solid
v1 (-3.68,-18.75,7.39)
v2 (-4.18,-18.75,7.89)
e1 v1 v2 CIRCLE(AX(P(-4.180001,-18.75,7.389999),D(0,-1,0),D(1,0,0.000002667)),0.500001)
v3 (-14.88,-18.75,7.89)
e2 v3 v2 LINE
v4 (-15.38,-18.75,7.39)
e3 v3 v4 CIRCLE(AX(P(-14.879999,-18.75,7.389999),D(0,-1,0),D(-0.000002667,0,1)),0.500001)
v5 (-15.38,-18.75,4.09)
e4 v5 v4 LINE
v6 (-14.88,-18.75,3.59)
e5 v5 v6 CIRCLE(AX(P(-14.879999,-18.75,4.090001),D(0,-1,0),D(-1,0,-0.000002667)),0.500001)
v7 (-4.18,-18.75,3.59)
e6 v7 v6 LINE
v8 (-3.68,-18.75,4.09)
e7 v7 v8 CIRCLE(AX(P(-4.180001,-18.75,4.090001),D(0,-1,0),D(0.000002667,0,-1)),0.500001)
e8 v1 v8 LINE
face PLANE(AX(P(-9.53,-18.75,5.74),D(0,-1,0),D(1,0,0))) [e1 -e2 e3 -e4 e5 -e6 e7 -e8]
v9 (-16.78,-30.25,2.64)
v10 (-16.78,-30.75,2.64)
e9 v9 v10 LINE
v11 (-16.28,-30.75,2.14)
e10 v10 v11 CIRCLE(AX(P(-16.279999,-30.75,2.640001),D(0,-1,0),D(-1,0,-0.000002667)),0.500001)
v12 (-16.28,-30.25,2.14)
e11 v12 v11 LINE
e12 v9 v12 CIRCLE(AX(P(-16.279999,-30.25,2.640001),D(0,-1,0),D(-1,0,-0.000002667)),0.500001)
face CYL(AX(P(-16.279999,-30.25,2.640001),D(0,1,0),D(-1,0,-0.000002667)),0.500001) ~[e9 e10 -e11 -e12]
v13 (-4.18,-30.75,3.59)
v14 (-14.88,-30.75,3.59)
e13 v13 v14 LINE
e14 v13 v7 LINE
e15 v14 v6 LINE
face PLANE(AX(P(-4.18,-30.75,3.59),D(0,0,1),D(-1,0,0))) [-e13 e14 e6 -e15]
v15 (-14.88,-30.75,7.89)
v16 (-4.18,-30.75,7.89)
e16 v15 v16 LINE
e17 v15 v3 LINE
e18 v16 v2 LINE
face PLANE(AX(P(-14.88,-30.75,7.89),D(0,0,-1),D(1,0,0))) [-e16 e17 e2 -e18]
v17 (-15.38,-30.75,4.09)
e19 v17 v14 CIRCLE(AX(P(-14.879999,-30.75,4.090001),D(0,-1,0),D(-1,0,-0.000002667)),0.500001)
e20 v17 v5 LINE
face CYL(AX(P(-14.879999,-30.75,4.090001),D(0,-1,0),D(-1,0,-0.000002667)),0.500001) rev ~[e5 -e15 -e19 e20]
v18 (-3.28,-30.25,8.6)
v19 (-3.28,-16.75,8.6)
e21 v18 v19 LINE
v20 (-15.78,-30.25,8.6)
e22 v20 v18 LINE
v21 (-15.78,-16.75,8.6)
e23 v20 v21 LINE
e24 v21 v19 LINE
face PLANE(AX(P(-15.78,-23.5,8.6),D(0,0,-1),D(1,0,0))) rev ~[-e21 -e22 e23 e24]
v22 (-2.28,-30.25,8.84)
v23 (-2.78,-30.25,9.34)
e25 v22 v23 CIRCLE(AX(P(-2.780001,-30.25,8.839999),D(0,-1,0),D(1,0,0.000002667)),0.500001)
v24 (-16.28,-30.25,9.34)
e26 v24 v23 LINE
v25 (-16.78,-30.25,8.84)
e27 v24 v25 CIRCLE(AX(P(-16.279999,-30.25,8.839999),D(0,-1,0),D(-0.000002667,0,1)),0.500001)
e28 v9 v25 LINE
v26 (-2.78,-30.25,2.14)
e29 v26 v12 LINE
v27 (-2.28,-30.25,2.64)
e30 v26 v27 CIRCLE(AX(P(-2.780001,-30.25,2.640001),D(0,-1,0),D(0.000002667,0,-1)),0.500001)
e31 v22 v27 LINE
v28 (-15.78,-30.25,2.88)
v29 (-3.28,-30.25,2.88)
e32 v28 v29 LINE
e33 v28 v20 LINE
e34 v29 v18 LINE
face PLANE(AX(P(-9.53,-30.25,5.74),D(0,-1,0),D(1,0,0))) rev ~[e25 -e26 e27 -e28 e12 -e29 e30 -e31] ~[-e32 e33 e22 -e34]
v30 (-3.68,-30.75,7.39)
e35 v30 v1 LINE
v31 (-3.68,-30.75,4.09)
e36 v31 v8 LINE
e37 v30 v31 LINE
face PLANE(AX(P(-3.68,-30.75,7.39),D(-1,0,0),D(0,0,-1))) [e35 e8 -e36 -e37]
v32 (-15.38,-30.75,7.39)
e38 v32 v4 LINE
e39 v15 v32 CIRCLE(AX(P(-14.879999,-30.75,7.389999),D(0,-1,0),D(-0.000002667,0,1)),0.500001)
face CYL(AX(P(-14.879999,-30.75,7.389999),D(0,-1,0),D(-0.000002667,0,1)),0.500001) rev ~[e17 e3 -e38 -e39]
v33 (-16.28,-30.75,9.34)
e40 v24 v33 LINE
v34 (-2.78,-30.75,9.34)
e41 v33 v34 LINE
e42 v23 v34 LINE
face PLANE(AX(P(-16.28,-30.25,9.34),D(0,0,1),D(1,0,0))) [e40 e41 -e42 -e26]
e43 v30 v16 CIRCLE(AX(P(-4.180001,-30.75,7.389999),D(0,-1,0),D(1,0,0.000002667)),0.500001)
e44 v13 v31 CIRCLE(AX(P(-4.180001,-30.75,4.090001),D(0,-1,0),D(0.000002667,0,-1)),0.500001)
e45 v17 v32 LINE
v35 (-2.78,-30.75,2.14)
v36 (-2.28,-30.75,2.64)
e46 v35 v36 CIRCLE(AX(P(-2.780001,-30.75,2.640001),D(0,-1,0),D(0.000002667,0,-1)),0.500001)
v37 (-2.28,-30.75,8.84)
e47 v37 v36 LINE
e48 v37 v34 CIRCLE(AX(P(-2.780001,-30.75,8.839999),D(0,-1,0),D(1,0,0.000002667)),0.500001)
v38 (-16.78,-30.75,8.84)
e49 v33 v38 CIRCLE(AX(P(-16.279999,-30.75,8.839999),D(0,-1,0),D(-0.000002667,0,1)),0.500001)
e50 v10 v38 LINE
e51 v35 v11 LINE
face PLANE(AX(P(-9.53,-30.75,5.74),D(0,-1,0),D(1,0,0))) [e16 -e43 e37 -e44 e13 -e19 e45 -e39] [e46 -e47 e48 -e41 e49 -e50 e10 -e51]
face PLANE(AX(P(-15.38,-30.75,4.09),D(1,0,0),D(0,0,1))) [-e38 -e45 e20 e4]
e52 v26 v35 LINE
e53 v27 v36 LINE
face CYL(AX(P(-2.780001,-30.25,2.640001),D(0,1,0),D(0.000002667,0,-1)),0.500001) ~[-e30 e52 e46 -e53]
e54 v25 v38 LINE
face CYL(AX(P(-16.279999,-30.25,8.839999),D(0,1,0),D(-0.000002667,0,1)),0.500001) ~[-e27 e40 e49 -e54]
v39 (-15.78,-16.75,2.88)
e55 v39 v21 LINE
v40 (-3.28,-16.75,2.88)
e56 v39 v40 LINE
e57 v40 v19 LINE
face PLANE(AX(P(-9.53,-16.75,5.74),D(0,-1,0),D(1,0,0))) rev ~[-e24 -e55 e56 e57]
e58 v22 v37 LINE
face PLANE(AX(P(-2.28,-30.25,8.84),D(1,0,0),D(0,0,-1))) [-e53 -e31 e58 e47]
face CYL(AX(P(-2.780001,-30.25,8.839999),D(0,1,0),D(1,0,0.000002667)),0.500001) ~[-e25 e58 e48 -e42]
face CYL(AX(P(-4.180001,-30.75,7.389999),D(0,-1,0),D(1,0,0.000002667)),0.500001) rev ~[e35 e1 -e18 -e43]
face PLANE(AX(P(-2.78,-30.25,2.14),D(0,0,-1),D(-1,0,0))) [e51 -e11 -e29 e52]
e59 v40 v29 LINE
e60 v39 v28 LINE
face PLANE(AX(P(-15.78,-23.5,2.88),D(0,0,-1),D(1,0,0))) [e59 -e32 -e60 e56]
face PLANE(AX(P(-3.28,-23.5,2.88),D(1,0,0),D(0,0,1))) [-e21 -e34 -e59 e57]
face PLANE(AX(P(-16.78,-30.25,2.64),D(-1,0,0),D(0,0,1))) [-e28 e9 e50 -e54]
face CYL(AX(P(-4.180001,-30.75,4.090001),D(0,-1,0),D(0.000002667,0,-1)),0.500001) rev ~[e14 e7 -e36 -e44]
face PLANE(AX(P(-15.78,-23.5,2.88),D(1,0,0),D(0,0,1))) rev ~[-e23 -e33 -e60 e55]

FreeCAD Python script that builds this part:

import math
import FreeCAD as App
import Part
import Sketcher

V = App.Vector

doc = App.newDocument("Part")
params = doc.addObject("Spreadsheet::Sheet", "Params")
for row, (alias, value) in enumerate([
    ("sketch1_width", "12.5 mm"),
    ("sketch1_height", "5.72 mm"),
    ("pad1_length", "13.5 mm"),
    ("sketch2_radius", "0.500001 mm"),
    ("sketch2_width", "13.5 mm"),
    ("sketch2_height", "6.2 mm"),
    ("pad2_length", "0.5 mm"),
    ("sketch3_radius", "0.500001 mm"),
    ("sketch3_width", "10.7 mm"),
    ("sketch3_height", "3.3 mm"),
    ("pocket1_length", "12 mm"),
], start=1):
    params.set(f"A{row}", alias)
    params.set(f"B{row}", "=" + value)
    params.setAlias(f"B{row}", alias)

body = doc.addObject("PartDesign::Body", "Body")

sketch1 = body.newObject("Sketcher::SketchObject", "Sketch")
sketch1.AttachmentSupport = (doc.getObject("XZ_Plane"), [""])
sketch1.MapMode = "FlatFace"
sketch1.addGeometry([
    Part.LineSegment(V(-6, 7, 0), V(-6, 1, 0)),
    Part.LineSegment(V(-6, 1, 0), V(6, 1, 0)),
    Part.LineSegment(V(6, 1, 0), V(6, 7, 0)),
    Part.LineSegment(V(6, 7, 0), V(-6, 7, 0)),
], False)
sketch1.addConstraint([
    Sketcher.Constraint("Coincident", 0, 2, 1, 1),
    Sketcher.Constraint("Coincident", 1, 2, 2, 1),
    Sketcher.Constraint("Coincident", 2, 2, 3, 1),
    Sketcher.Constraint("Coincident", 3, 2, 0, 1),
    Sketcher.Constraint("Vertical", 0),
    Sketcher.Constraint("Horizontal", 1),
    Sketcher.Constraint("Vertical", 2),
    Sketcher.Constraint("Horizontal", 3),
    Sketcher.Constraint("DistanceX", 1, 1, 1, 2, 12.5),
    Sketcher.Constraint("DistanceY", -1, 1, 2, 2, 7.0),
    Sketcher.Constraint("DistanceY", 0, 2, 0, 1, 5.72),
    Sketcher.Constraint("DistanceX", 0, 2, -1, 1, 6.25),
])
sketch1.setExpression("Constraints[8]", "Params.sketch1_width")
sketch1.setExpression("Constraints[10]", "Params.sketch1_height")
pad1 = body.newObject("PartDesign::Pad", "Pad")
pad1.Profile = sketch1
pad1.setExpression("Length", "Params.pad1_length")
pad1.Midplane = True

sketch2 = body.newObject("Sketcher::SketchObject", "Sketch001")
sketch2.AttachmentSupport = (doc.getObject("XZ_Plane"), [""])
sketch2.MapMode = "FlatFace"
sketch2.AttachmentOffset = App.Placement(V(0, 0, 6.75), App.Rotation())
sketch2.addGeometry([
    Part.ArcOfCircle(Part.Circle(V(-6.7, 7.2, 0), V(0, 0, 1), 0.5), math.radians(90), math.radians(180)),
    Part.LineSegment(V(-7.2, 7.2, 0), V(-7.2, 1, 0)),
    Part.ArcOfCircle(Part.Circle(V(-6.7, 1, 0), V(0, 0, 1), 0.5), math.radians(-180), math.radians(-90)),
    Part.LineSegment(V(-6.8, 0.5, 0), V(6.8, 0.5, 0)),
    Part.ArcOfCircle(Part.Circle(V(6.7, 1, 0), V(0, 0, 1), 0.5), math.radians(-90), math.radians(0)),
    Part.LineSegment(V(7.2, 1, 0), V(7.2, 7.2, 0)),
    Part.ArcOfCircle(Part.Circle(V(6.7, 7.2, 0), V(0, 0, 1), 0.5), math.radians(0), math.radians(90)),
    Part.LineSegment(V(6.8, 7.7, 0), V(-6.8, 7.7, 0)),
], False)
sketch2.addConstraint([
    Sketcher.Constraint("Coincident", 0, 2, 1, 1),
    Sketcher.Constraint("Coincident", 1, 2, 2, 1),
    Sketcher.Constraint("Coincident", 2, 2, 3, 1),
    Sketcher.Constraint("Coincident", 3, 2, 4, 1),
    Sketcher.Constraint("Coincident", 4, 2, 5, 1),
    Sketcher.Constraint("Coincident", 5, 2, 6, 1),
    Sketcher.Constraint("Coincident", 6, 2, 7, 1),
    Sketcher.Constraint("Coincident", 7, 2, 0, 1),
    Sketcher.Constraint("Vertical", 1),
    Sketcher.Constraint("Horizontal", 3),
    Sketcher.Constraint("Vertical", 5),
    Sketcher.Constraint("Horizontal", 7),
    Sketcher.Constraint("Equal", 0, 2),
    Sketcher.Constraint("Equal", 2, 4),
    Sketcher.Constraint("Equal", 4, 6),
    Sketcher.Constraint("Symmetric", 1, 2, 4, 2, -2),
    Sketcher.Constraint("Horizontal", 6, 3, 0, 2),
    Sketcher.Constraint("Horizontal", 4, 3, 1, 2),
    Sketcher.Constraint("Horizontal", 0, 2, 5, 2),
    Sketcher.Constraint("Vertical", 0, 3, 2, 2),
    Sketcher.Constraint("Vertical", 6, 3, 3, 2),
    Sketcher.Constraint("Vertical", 3, 2, 6, 2),
    Sketcher.Constraint("Vertical", 2, 2, 7, 2),
    Sketcher.Constraint("Radius", 0, 0.500001),
    Sketcher.Constraint("DistanceX", 3, 1, 3, 2, 13.5),
    Sketcher.Constraint("DistanceY", 1, 2, 1, 1, 6.2),
    Sketcher.Constraint("DistanceY", -1, 1, 0, 3, 7.239999),
])
sketch2.setExpression("Constraints[23]", "Params.sketch2_radius")
sketch2.setExpression("Constraints[24]", "Params.sketch2_width")
sketch2.setExpression("Constraints[25]", "Params.sketch2_height")
pad2 = body.newObject("PartDesign::Pad", "Pad001")
pad2.Profile = sketch2
pad2.setExpression("Length", "Params.pad2_length")

sketch3 = body.newObject("Sketcher::SketchObject", "Sketch002")
sketch3.AttachmentSupport = (doc.getObject("XZ_Plane"), [""])
sketch3.MapMode = "FlatFace"
sketch3.AttachmentOffset = App.Placement(V(0, 0, 7.25), App.Rotation())
sketch3.addGeometry([
    Part.ArcOfCircle(Part.Circle(V(-5.3, 5.8, 0), V(0, 0, 1), 0.5), math.radians(90), math.radians(180)),
    Part.LineSegment(V(-5.8, 5.8, 0), V(-5.8, 2.5, 0)),
    Part.ArcOfCircle(Part.Circle(V(-5.3, 2.5, 0), V(0, 0, 1), 0.5), math.radians(-180), math.radians(-90)),
    Part.LineSegment(V(-5.3, 2, 0), V(5.3, 2, 0)),
    Part.ArcOfCircle(Part.Circle(V(5.3, 2.5, 0), V(0, 0, 1), 0.5), math.radians(-90), math.radians(0)),
    Part.LineSegment(V(5.8, 2.5, 0), V(5.8, 5.8, 0)),
    Part.ArcOfCircle(Part.Circle(V(5.3, 5.8, 0), V(0, 0, 1), 0.5), math.radians(0), math.radians(90)),
    Part.LineSegment(V(5.3, 6.3, 0), V(-5.3, 6.3, 0)),
], False)
sketch3.addConstraint([
    Sketcher.Constraint("Coincident", 0, 2, 1, 1),
    Sketcher.Constraint("Coincident", 1, 2, 2, 1),
    Sketcher.Constraint("Coincident", 2, 2, 3, 1),
    Sketcher.Constraint("Coincident", 3, 2, 4, 1),
    Sketcher.Constraint("Coincident", 4, 2, 5, 1),
    Sketcher.Constraint("Coincident", 5, 2, 6, 1),
    Sketcher.Constraint("Coincident", 6, 2, 7, 1),
    Sketcher.Constraint("Coincident", 7, 2, 0, 1),
    Sketcher.Constraint("Vertical", 1),
    Sketcher.Constraint("Horizontal", 3),
    Sketcher.Constraint("Vertical", 5),
    Sketcher.Constraint("Horizontal", 7),
    Sketcher.Constraint("Equal", 0, 2),
    Sketcher.Constraint("Equal", 2, 4),
    Sketcher.Constraint("Equal", 4, 6),
    Sketcher.Constraint("Symmetric", 1, 2, 4, 2, -2),
    Sketcher.Constraint("Horizontal", 6, 3, 0, 2),
    Sketcher.Constraint("Horizontal", 4, 3, 1, 2),
    Sketcher.Constraint("Horizontal", 0, 2, 5, 2),
    Sketcher.Constraint("Vertical", 0, 3, 2, 2),
    Sketcher.Constraint("Vertical", 6, 3, 3, 2),
    Sketcher.Constraint("Vertical", 3, 2, 6, 2),
    Sketcher.Constraint("Vertical", 2, 2, 7, 2),
    Sketcher.Constraint("Radius", 0, 0.500001),
    Sketcher.Constraint("DistanceX", 3, 1, 3, 2, 10.7),
    Sketcher.Constraint("DistanceY", 1, 2, 1, 1, 3.3),
    Sketcher.Constraint("DistanceY", -1, 1, 0, 3, 5.789999),
])
sketch3.setExpression("Constraints[23]", "Params.sketch3_radius")
sketch3.setExpression("Constraints[24]", "Params.sketch3_width")
sketch3.setExpression("Constraints[25]", "Params.sketch3_height")
pocket1 = body.newObject("PartDesign::Pocket", "Pocket")
pocket1.Profile = sketch3
pocket1.setExpression("Length", "Params.pocket1_length")
body2 = doc.addObject("PartDesign::Body", "Body001")
doc.recompute()

body.Placement = App.Placement(V(-9.53, -23.5, 1.6), App.Rotation(V(0, 0, 1), 0))
boolean = body2.newObject("PartDesign::Boolean", "Boolean")
boolean.Type = "Fuse"
boolean.addObjects([body])

doc.recompute()
